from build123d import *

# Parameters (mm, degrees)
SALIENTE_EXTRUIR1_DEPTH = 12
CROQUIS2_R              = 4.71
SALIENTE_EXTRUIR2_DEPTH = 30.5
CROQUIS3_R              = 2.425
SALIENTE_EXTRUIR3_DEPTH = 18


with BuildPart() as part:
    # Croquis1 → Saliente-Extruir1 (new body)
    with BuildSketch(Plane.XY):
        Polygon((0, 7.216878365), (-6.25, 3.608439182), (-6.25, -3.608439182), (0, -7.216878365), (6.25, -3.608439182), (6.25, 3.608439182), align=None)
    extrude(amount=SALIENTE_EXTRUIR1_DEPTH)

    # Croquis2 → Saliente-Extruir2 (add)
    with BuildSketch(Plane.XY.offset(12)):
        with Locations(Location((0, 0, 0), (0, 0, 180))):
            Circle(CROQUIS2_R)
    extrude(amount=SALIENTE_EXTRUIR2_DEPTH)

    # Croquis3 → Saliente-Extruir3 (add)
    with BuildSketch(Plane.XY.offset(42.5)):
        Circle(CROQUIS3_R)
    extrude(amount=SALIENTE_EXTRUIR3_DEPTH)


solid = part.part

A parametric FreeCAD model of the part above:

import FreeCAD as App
import Part
import Sketcher
from FreeCAD import Vector
Q = App.Units.Quantity


def add_polygon(sketch, points):
    """Adds a closed chain of lines whose ends are joined by coincident constraints."""
    first, n = sketch.GeometryCount, len(points)
    for a, b in zip(points, points[1:] + points[:1]):
        sketch.addGeometry(Part.LineSegment(App.Vector(*a, 0), App.Vector(*b, 0)), False)
    for i in range(n):
        sketch.addConstraint(Sketcher.Constraint("Coincident", first + i, 2, first + (i + 1) % n, 1))

doc = App.newDocument("Part")
body = doc.addObject("PartDesign::Body", "Body")

# Sketch on XY plane
sketch1 = body.newObject("Sketcher::SketchObject", "Sketch")
sketch1.AttachmentSupport = (doc.getObject("XY_Plane"), [""])
sketch1.MapMode = "FlatFace"
add_polygon(sketch1, [(0, 7.216878), (-6.25, 3.608439), (-6.25, -3.608439), (0, -7.216878), (6.25, -3.608439), (6.25, 3.608439)])  # lines 0-5
sketch1.addConstraint([
    Sketcher.Constraint("Vertical", 1),
    Sketcher.Constraint("Vertical", 4),
    Sketcher.Constraint("Symmetric", 0, 2, 3, 2, -1, 1),
    Sketcher.Constraint("Symmetric", 2, 2, 5, 2, -1, 1),
    Sketcher.Constraint("PointOnObject", 2, 2, -2),
    Sketcher.Constraint("Parallel", 2, 5),
    Sketcher.Constraint("Horizontal", 1, 2, 3, 2),
    Sketcher.Constraint("Angle", 0, Q("-150 deg")),
    Sketcher.Constraint("DistanceX", 1, 2, 3, 2, 12.5),
    Sketcher.Constraint("DistanceY", 1, 2, 1, 1, 7.216878),
])
pad1 = body.newObject("PartDesign::Pad", "Pad")
pad1.Profile = sketch1
pad1.Length = 12

# Sketch on XY plane
sketch2 = body.newObject("Sketcher::SketchObject", "Sketch001")
sketch2.AttachmentSupport = (doc.getObject("XY_Plane"), [""])
sketch2.MapMode = "FlatFace"
sketch2.AttachmentOffset = App.Placement(Vector(0, 0, 12), App.Rotation())
sketch2.addGeometry(Part.Circle(Vector(0, 0, 0), Vector(0, 0, 1), 4.71), False)
sketch2.addConstraint([
    Sketcher.Constraint("Coincident", 0, 3, -1, 1),
    Sketcher.Constraint("Diameter", 0, 9.42),
])
pad2 = body.newObject("PartDesign::Pad", "Pad001")
pad2.Profile = sketch2
pad2.Length = 30.5

# Sketch on XY plane
sketch3 = body.newObject("Sketcher::SketchObject", "Sketch002")
sketch3.AttachmentSupport = (doc.getObject("XY_Plane"), [""])
sketch3.MapMode = "FlatFace"
sketch3.AttachmentOffset = App.Placement(Vector(0, 0, 42.5), App.Rotation())
sketch3.addGeometry(Part.Circle(Vector(0, 0, 0), Vector(0, 0, 1), 2.425), False)
sketch3.addConstraint([
    Sketcher.Constraint("Coincident", 0, 3, -1, 1),
    Sketcher.Constraint("Diameter", 0, 4.85),
])
pad3 = body.newObject("PartDesign::Pad", "Pad002")
pad3.Profile = sketch3
pad3.Length = 18

doc.recompute()
